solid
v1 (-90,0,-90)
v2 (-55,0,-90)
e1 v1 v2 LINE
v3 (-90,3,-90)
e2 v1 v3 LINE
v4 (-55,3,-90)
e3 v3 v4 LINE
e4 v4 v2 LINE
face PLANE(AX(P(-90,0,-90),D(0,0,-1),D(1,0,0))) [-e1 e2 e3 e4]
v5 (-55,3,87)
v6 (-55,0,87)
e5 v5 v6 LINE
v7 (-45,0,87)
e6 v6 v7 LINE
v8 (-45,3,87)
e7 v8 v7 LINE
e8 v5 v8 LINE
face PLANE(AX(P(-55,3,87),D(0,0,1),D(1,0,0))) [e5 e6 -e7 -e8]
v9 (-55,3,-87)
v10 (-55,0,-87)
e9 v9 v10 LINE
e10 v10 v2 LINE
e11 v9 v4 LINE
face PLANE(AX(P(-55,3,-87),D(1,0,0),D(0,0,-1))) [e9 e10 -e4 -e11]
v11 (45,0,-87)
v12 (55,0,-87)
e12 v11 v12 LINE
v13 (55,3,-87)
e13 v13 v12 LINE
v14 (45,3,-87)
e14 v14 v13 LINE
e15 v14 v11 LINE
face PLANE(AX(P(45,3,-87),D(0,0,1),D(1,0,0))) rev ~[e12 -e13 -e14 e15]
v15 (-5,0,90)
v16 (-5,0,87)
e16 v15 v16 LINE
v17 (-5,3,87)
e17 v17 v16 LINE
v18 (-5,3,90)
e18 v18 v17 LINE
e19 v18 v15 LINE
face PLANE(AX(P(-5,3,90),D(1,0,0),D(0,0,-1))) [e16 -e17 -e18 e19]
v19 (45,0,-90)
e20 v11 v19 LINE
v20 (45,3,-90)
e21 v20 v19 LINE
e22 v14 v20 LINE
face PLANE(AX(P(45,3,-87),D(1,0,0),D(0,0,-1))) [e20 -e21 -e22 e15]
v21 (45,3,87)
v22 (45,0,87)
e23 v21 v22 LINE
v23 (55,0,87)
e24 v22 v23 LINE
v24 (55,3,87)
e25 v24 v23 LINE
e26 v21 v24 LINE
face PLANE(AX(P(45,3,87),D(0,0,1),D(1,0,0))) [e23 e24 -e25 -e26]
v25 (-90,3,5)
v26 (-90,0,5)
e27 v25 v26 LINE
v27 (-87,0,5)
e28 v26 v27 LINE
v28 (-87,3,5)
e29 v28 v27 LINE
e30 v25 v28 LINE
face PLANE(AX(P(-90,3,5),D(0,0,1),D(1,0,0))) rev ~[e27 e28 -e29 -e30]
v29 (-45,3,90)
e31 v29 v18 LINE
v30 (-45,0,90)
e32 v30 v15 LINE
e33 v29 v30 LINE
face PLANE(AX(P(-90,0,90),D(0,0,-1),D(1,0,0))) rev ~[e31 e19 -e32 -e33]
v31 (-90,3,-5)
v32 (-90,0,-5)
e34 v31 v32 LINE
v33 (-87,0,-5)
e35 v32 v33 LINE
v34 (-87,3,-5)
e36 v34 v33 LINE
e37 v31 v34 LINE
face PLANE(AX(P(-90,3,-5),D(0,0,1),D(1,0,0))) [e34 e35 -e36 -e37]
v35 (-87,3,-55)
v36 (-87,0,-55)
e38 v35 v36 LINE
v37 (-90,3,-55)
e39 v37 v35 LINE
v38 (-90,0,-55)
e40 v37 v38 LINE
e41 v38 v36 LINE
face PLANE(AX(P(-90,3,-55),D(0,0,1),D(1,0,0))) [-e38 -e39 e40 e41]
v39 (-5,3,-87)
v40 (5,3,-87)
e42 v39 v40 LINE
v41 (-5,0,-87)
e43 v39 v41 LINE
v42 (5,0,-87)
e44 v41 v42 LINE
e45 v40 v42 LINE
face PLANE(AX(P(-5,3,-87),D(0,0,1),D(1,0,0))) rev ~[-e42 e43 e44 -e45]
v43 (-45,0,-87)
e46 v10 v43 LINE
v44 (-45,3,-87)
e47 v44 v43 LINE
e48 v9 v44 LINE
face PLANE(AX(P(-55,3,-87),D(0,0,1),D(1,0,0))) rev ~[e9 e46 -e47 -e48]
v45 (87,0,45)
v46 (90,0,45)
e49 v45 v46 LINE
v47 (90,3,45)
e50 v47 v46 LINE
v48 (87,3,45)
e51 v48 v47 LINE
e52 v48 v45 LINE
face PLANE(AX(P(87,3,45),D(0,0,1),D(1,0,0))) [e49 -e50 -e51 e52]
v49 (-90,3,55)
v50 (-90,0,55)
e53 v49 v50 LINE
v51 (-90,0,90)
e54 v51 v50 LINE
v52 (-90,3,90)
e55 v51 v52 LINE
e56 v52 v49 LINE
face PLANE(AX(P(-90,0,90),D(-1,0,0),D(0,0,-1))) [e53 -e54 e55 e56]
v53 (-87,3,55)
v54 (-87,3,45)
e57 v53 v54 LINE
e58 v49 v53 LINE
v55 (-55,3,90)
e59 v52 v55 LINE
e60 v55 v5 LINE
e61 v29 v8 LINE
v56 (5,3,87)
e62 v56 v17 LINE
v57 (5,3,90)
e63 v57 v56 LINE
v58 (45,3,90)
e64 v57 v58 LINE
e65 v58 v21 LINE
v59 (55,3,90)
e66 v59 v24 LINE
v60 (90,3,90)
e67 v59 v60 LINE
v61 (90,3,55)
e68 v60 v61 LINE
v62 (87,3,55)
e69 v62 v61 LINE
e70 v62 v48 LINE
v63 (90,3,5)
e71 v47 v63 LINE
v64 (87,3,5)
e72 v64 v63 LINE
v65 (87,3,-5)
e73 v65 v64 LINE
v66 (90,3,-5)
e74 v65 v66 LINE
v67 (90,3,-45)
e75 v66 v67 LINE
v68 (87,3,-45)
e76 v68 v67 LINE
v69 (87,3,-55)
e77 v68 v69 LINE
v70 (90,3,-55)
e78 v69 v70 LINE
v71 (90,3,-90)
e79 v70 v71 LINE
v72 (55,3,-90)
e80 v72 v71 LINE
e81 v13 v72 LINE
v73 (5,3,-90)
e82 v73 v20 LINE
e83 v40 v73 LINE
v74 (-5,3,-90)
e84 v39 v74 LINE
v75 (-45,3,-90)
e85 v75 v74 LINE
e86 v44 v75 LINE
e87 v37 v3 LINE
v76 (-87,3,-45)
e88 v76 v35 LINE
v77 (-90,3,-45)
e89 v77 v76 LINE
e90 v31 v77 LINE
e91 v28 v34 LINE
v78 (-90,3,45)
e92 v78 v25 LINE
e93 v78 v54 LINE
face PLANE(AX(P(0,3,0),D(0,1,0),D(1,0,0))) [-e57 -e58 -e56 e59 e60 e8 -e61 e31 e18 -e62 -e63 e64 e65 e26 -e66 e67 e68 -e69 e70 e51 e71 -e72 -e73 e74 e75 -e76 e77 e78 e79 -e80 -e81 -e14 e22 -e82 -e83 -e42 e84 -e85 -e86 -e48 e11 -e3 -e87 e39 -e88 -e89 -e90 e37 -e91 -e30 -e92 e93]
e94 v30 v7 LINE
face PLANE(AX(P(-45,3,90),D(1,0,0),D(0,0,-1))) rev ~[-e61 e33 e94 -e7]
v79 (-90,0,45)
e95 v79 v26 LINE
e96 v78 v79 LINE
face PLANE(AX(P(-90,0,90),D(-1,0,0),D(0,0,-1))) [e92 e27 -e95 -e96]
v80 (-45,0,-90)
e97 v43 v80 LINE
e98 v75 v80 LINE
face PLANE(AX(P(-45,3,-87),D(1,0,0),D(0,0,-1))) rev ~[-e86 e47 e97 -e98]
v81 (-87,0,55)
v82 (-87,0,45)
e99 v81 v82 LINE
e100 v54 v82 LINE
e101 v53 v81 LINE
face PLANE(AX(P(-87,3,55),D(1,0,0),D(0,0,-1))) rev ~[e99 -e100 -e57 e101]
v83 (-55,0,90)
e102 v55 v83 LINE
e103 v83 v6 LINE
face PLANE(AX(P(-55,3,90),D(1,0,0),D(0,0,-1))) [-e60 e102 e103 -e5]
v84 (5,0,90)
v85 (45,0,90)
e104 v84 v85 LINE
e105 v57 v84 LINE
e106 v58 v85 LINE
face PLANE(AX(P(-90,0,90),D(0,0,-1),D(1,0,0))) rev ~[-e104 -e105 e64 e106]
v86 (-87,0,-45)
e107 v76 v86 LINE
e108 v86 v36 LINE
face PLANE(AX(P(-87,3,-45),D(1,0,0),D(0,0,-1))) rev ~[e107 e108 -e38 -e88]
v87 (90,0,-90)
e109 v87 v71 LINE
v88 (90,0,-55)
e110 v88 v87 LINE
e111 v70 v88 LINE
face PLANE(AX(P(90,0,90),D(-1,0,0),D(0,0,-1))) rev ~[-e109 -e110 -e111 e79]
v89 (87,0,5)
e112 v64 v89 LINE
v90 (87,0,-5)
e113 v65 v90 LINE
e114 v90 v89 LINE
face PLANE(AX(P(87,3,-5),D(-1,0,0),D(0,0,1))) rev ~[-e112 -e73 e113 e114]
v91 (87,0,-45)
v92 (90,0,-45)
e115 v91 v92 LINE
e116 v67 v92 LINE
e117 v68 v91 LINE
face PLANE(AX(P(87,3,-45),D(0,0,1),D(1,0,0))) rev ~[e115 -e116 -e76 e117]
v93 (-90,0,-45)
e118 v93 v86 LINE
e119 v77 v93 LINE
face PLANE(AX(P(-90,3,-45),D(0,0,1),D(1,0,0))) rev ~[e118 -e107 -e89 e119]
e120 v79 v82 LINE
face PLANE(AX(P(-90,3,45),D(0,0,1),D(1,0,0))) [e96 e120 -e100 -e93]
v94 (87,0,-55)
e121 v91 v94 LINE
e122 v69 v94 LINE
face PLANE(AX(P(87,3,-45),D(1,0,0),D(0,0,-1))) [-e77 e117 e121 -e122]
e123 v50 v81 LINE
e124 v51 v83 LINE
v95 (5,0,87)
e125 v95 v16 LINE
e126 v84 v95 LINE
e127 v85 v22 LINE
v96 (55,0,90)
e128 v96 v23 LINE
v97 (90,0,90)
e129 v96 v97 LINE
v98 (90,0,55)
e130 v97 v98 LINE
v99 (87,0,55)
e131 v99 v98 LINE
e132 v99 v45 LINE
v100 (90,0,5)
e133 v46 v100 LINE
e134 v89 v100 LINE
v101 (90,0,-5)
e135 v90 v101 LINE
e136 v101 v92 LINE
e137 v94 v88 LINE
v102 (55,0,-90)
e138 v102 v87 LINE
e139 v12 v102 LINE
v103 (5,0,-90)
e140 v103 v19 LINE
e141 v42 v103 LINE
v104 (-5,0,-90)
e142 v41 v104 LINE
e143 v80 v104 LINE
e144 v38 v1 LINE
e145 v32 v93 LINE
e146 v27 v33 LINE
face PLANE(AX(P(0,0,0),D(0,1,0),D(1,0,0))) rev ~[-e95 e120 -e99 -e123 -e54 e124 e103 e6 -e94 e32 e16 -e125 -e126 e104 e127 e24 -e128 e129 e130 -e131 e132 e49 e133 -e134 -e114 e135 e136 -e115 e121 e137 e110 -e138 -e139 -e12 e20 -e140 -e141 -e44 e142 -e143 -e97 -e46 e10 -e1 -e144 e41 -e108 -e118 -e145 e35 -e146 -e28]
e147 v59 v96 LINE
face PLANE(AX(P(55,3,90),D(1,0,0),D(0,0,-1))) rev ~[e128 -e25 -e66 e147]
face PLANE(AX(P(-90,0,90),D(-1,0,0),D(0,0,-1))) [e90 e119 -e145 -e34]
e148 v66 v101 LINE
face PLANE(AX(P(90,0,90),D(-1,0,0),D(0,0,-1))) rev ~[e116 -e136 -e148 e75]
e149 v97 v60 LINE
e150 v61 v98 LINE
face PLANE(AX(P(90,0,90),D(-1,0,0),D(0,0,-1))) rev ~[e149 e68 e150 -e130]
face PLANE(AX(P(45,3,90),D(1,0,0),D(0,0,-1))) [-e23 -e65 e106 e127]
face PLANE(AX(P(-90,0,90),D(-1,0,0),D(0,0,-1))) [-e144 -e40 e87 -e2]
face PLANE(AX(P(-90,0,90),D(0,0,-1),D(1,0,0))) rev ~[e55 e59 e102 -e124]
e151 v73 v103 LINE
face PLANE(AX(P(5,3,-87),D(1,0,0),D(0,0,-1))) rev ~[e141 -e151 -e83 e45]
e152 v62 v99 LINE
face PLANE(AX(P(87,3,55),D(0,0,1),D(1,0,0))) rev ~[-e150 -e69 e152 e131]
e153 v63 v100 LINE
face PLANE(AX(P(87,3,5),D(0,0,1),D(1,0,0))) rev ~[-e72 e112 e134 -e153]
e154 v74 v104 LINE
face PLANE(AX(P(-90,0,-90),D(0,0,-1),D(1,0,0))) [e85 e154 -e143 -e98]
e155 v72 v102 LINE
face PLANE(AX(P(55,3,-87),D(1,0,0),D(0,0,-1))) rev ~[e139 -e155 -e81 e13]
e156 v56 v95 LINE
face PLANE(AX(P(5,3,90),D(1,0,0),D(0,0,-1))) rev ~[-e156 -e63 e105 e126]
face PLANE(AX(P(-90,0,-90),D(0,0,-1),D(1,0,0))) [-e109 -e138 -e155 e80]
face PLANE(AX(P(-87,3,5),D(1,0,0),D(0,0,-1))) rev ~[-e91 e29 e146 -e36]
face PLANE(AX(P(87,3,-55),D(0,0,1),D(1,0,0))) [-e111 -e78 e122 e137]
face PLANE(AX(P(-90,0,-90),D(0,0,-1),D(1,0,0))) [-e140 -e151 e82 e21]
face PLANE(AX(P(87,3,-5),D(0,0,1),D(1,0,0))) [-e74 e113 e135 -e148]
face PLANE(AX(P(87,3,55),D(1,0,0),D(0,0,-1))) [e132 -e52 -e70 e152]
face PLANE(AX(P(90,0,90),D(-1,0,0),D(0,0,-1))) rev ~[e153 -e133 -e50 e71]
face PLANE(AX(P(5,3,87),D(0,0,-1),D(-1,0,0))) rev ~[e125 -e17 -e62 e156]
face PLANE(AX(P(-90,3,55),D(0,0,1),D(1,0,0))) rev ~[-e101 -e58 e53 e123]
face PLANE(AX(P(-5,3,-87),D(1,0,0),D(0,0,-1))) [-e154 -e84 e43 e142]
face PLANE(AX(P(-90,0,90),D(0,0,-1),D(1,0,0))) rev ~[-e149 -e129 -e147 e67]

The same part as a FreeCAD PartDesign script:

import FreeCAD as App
import Part
import Sketcher

V = App.Vector
Q = App.Units.Quantity

doc = App.newDocument("Part")
body = doc.addObject("PartDesign::Body", "Body")

sketch1 = body.newObject("Sketcher::SketchObject", "Sketch")
sketch1.AttachmentSupport = (doc.getObject("XZ_Plane"), [""])
sketch1.MapMode = "FlatFace"
sketch1.addGeometry([
    Part.LineSegment(V(-90, -90, 0), V(-90, 90, 0)),
    Part.LineSegment(V(-90, 90, 0), V(90, 90, 0)),
    Part.LineSegment(V(90, 90, 0), V(90, -90, 0)),
    Part.LineSegment(V(90, -90, 0), V(-90, -90, 0)),
], False)
sketch1.addConstraint([
    Sketcher.Constraint("Coincident", 0, 2, 1, 1),
    Sketcher.Constraint("Coincident", 1, 2, 2, 1),
    Sketcher.Constraint("Coincident", 2, 2, 3, 1),
    Sketcher.Constraint("Coincident", 3, 2, 0, 1),
    Sketcher.Constraint("Vertical", 0),
    Sketcher.Constraint("Horizontal", 1),
    Sketcher.Constraint("Vertical", 2),
    Sketcher.Constraint("Horizontal", 3),
    Sketcher.Constraint("Symmetric", 0, 2, 2, 2, -1, 1),
    Sketcher.Constraint("Equal", 3, 0),
    Sketcher.Constraint("DistanceX", 1, 1, 1, 2, Q("180 mm")),
])
pad1 = body.newObject("PartDesign::Pad", "Pad")
pad1.Profile = sketch1
pad1.Length = 3
pad1.Reversed = True

sketch2 = body.newObject("Sketcher::SketchObject", "Sketch001")
sketch2.AttachmentSupport = (doc.getObject("XZ_Plane"), [""])
sketch2.MapMode = "FlatFace"
sketch2.AttachmentOffset = App.Placement(V(0, 0, -3), App.Rotation())
sketch2.addGeometry([
    Part.LineSegment(V(-5, -90, 0), V(-5, -87, 0)),
    Part.LineSegment(V(-5, -87, 0), V(5, -87, 0)),
    Part.LineSegment(V(5, -87, 0), V(5, -90, 0)),
    Part.LineSegment(V(5, -90, 0), V(-5, -90, 0)),
], False)
sketch2.addConstraint([
    Sketcher.Constraint("Coincident", 0, 2, 1, 1),
    Sketcher.Constraint("Coincident", 1, 2, 2, 1),
    Sketcher.Constraint("Coincident", 2, 2, 3, 1),
    Sketcher.Constraint("Coincident", 3, 2, 0, 1),
    Sketcher.Constraint("Vertical", 0),
    Sketcher.Constraint("Horizontal", 1),
    Sketcher.Constraint("Vertical", 2),
    Sketcher.Constraint("Horizontal", 3),
    Sketcher.Constraint("DistanceX", 1, 1, 1, 2, Q("10 mm")),
    Sketcher.Constraint("DistanceY", 0, 1, 0, 2, Q("3 mm")),
    Sketcher.Constraint("DistanceX", 0, 2, -1, 1, Q("5 mm")),
    Sketcher.Constraint("DistanceY", 0, 2, -1, 1, Q("87 mm")),
])
pocket1 = body.newObject("PartDesign::Pocket", "Pocket")
pocket1.Profile = sketch2
pocket1.Length = 3
pocket1.Reversed = True

sketch3 = body.newObject("Sketcher::SketchObject", "Sketch002")
sketch3.AttachmentSupport = (doc.getObject("XZ_Plane"), [""])
sketch3.MapMode = "FlatFace"
sketch3.AttachmentOffset = App.Placement(V(0, 0, -3), App.Rotation())
sketch3.addGeometry([
    Part.LineSegment(V(-5, 87, 0), V(-5, 90, 0)),
    Part.LineSegment(V(-5, 90, 0), V(5, 90, 0)),
    Part.LineSegment(V(5, 90, 0), V(5, 87, 0)),
    Part.LineSegment(V(5, 87, 0), V(-5, 87, 0)),
], False)
sketch3.addConstraint([
    Sketcher.Constraint("Coincident", 0, 2, 1, 1),
    Sketcher.Constraint("Coincident", 1, 2, 2, 1),
    Sketcher.Constraint("Coincident", 2, 2, 3, 1),
    Sketcher.Constraint("Coincident", 3, 2, 0, 1),
    Sketcher.Constraint("Vertical", 0),
    Sketcher.Constraint("Horizontal", 1),
    Sketcher.Constraint("Vertical", 2),
    Sketcher.Constraint("Horizontal", 3),
    Sketcher.Constraint("DistanceX", 1, 1, 1, 2, Q("10 mm")),
    Sketcher.Constraint("DistanceY", 0, 1, 0, 2, Q("3 mm")),
    Sketcher.Constraint("DistanceX", 0, 2, -1, 1, Q("5 mm")),
    Sketcher.Constraint("DistanceY", -1, 1, 0, 2, Q("90 mm")),
])
pocket2 = body.newObject("PartDesign::Pocket", "Pocket001")
pocket2.Profile = sketch3
pocket2.Length = 3
pocket2.Reversed = True

sketch4 = body.newObject("Sketcher::SketchObject", "Sketch003")
sketch4.AttachmentSupport = (doc.getObject("XZ_Plane"), [""])
sketch4.MapMode = "FlatFace"
sketch4.AttachmentOffset = App.Placement(V(0, 0, -3), App.Rotation())
sketch4.addGeometry([
    Part.LineSegment(V(-90, -5, 0), V(-90, 5, 0)),
    Part.LineSegment(V(-90, 5, 0), V(-87, 5, 0)),
    Part.LineSegment(V(-87, 5, 0), V(-87, -5, 0)),
    Part.LineSegment(V(-87, -5, 0), V(-90, -5, 0)),
], False)
sketch4.addConstraint([
    Sketcher.Constraint("Coincident", 0, 2, 1, 1),
    Sketcher.Constraint("Coincident", 1, 2, 2, 1),
    Sketcher.Constraint("Coincident", 2, 2, 3, 1),
    Sketcher.Constraint("Coincident", 3, 2, 0, 1),
    Sketcher.Constraint("Vertical", 0),
    Sketcher.Constraint("Horizontal", 1),
    Sketcher.Constraint("Vertical", 2),
    Sketcher.Constraint("Horizontal", 3),
    Sketcher.Constraint("DistanceX", 1, 1, 1, 2, Q("3 mm")),
    Sketcher.Constraint("DistanceY", 0, 1, 0, 2, Q("10 mm")),
    Sketcher.Constraint("DistanceX", 0, 2, -1, 1, Q("90 mm")),
    Sketcher.Constraint("DistanceY", -1, 1, 0, 2, Q("5 mm")),
])
pocket3 = body.newObject("PartDesign::Pocket", "Pocket002")
pocket3.Profile = sketch4
pocket3.Length = 3
pocket3.Reversed = True

sketch5 = body.newObject("Sketcher::SketchObject", "Sketch004")
sketch5.AttachmentSupport = (doc.getObject("XZ_Plane"), [""])
sketch5.MapMode = "FlatFace"
sketch5.AttachmentOffset = App.Placement(V(0, 0, -3), App.Rotation())
sketch5.addGeometry([
    Part.LineSegment(V(87, -5, 0), V(87, 5, 0)),
    Part.LineSegment(V(87, 5, 0), V(90, 5, 0)),
    Part.LineSegment(V(90, 5, 0), V(90, -5, 0)),
    Part.LineSegment(V(90, -5, 0), V(87, -5, 0)),
], False)
sketch5.addConstraint([
    Sketcher.Constraint("Coincident", 0, 2, 1, 1),
    Sketcher.Constraint("Coincident", 1, 2, 2, 1),
    Sketcher.Constraint("Coincident", 2, 2, 3, 1),
    Sketcher.Constraint("Coincident", 3, 2, 0, 1),
    Sketcher.Constraint("Vertical", 0),
    Sketcher.Constraint("Horizontal", 1),
    Sketcher.Constraint("Vertical", 2),
    Sketcher.Constraint("Horizontal", 3),
    Sketcher.Constraint("DistanceX", 1, 1, 1, 2, Q("3 mm")),
    Sketcher.Constraint("DistanceY", 0, 1, 0, 2, Q("10 mm")),
    Sketcher.Constraint("DistanceX", -1, 1, 0, 2, Q("87 mm")),
    Sketcher.Constraint("DistanceY", -1, 1, 0, 2, Q("5 mm")),
])
pocket4 = body.newObject("PartDesign::Pocket", "Pocket003")
pocket4.Profile = sketch5
pocket4.Length = 3
pocket4.Reversed = True

sketch6 = body.newObject("Sketcher::SketchObject", "Sketch005")
sketch6.AttachmentSupport = (doc.getObject("XZ_Plane"), [""])
sketch6.MapMode = "FlatFace"
sketch6.AttachmentOffset = App.Placement(V(0, 0, -3), App.Rotation())
sketch6.addGeometry([
    Part.LineSegment(V(-55, 87, 0), V(-55, 90, 0)),
    Part.LineSegment(V(-55, 90, 0), V(-45, 90, 0)),
    Part.LineSegment(V(-45, 90, 0), V(-45, 87, 0)),
    Part.LineSegment(V(-45, 87, 0), V(-55, 87, 0)),
    Part.LineSegment(V(45, 87, 0), V(45, 90, 0)),
    Part.LineSegment(V(45, 90, 0), V(55, 90, 0)),
    Part.LineSegment(V(55, 90, 0), V(55, 87, 0)),
    Part.LineSegment(V(55, 87, 0), V(45, 87, 0)),
    Part.LineSegment(V(87, 45, 0), V(87, 55, 0)),
    Part.LineSegment(V(87, 55, 0), V(90, 55, 0)),
    Part.LineSegment(V(90, 55, 0), V(90, 45, 0)),
    Part.LineSegment(V(90, 45, 0), V(87, 45, 0)),
    Part.LineSegment(V(45, -90, 0), V(45, -87, 0)),
    Part.LineSegment(V(45, -87, 0), V(55, -87, 0)),
    Part.LineSegment(V(55, -87, 0), V(55, -90, 0)),
    Part.LineSegment(V(55, -90, 0), V(45, -90, 0)),
    Part.LineSegment(V(-90, 45, 0), V(-90, 55, 0)),
    Part.LineSegment(V(-90, 55, 0), V(-87, 55, 0)),
    Part.LineSegment(V(-87, 55, 0), V(-87, 45, 0)),
    Part.LineSegment(V(-87, 45, 0), V(-90, 45, 0)),
    Part.LineSegment(V(87, -55, 0), V(87, -45, 0)),
    Part.LineSegment(V(87, -45, 0), V(90, -45, 0)),
    Part.LineSegment(V(90, -45, 0), V(90, -55, 0)),
    Part.LineSegment(V(90, -55, 0), V(87, -55, 0)),
    Part.LineSegment(V(-90, -55, 0), V(-90, -45, 0)),
    Part.LineSegment(V(-90, -45, 0), V(-87, -45, 0)),
    Part.LineSegment(V(-87, -45, 0), V(-87, -55, 0)),
    Part.LineSegment(V(-87, -55, 0), V(-90, -55, 0)),
    Part.LineSegment(V(-55, -90, 0), V(-55, -87, 0)),
    Part.LineSegment(V(-55, -87, 0), V(-45, -87, 0)),
    Part.LineSegment(V(-45, -87, 0), V(-45, -90, 0)),
    Part.LineSegment(V(-45, -90, 0), V(-55, -90, 0)),
], False)
sketch6.addConstraint([
    Sketcher.Constraint("Coincident", 0, 2, 1, 1),
    Sketcher.Constraint("Coincident", 1, 2, 2, 1),
    Sketcher.Constraint("Coincident", 2, 2, 3, 1),
    Sketcher.Constraint("Coincident", 3, 2, 0, 1),
    Sketcher.Constraint("Coincident", 4, 2, 5, 1),
    Sketcher.Constraint("Coincident", 5, 2, 6, 1),
    Sketcher.Constraint("Coincident", 6, 2, 7, 1),
    Sketcher.Constraint("Coincident", 7, 2, 4, 1),
    Sketcher.Constraint("Coincident", 8, 2, 9, 1),
    Sketcher.Constraint("Coincident", 9, 2, 10, 1),
    Sketcher.Constraint("Coincident", 10, 2, 11, 1),
    Sketcher.Constraint("Coincident", 11, 2, 8, 1),
    Sketcher.Constraint("Coincident", 12, 2, 13, 1),
    Sketcher.Constraint("Coincident", 13, 2, 14, 1),
    Sketcher.Constraint("Coincident", 14, 2, 15, 1),
    Sketcher.Constraint("Coincident", 15, 2, 12, 1),
    Sketcher.Constraint("Coincident", 16, 2, 17, 1),
    Sketcher.Constraint("Coincident", 17, 2, 18, 1),
    Sketcher.Constraint("Coincident", 18, 2, 19, 1),
    Sketcher.Constraint("Coincident", 19, 2, 16, 1),
    Sketcher.Constraint("Coincident", 20, 2, 21, 1),
    Sketcher.Constraint("Coincident", 21, 2, 22, 1),
    Sketcher.Constraint("Coincident", 22, 2, 23, 1),
    Sketcher.Constraint("Coincident", 23, 2, 20, 1),
    Sketcher.Constraint("Coincident", 24, 2, 25, 1),
    Sketcher.Constraint("Coincident", 25, 2, 26, 1),
    Sketcher.Constraint("Coincident", 26, 2, 27, 1),
    Sketcher.Constraint("Coincident", 27, 2, 24, 1),
    Sketcher.Constraint("Coincident", 28, 2, 29, 1),
    Sketcher.Constraint("Coincident", 29, 2, 30, 1),
    Sketcher.Constraint("Coincident", 30, 2, 31, 1),
    Sketcher.Constraint("Coincident", 31, 2, 28, 1),
    Sketcher.Constraint("Vertical", 0),
    Sketcher.Constraint("Horizontal", 1),
    Sketcher.Constraint("Vertical", 2),
    Sketcher.Constraint("Horizontal", 3),
    Sketcher.Constraint("Vertical", 4),
    Sketcher.Constraint("Horizontal", 5),
    Sketcher.Constraint("Vertical", 6),
    Sketcher.Constraint("Horizontal", 7),
    Sketcher.Constraint("Vertical", 8),
    Sketcher.Constraint("Horizontal", 9),
    Sketcher.Constraint("Vertical", 10),
    Sketcher.Constraint("Horizontal", 11),
    Sketcher.Constraint("Vertical", 12),
    Sketcher.Constraint("Horizontal", 13),
    Sketcher.Constraint("Vertical", 14),
    Sketcher.Constraint("Horizontal", 15),
    Sketcher.Constraint("Vertical", 16),
    Sketcher.Constraint("Horizontal", 17),
    Sketcher.Constraint("Vertical", 18),
    Sketcher.Constraint("Horizontal", 19),
    Sketcher.Constraint("Vertical", 20),
    Sketcher.Constraint("Horizontal", 21),
    Sketcher.Constraint("Vertical", 22),
    Sketcher.Constraint("Horizontal", 23),
    Sketcher.Constraint("Vertical", 24),
    Sketcher.Constraint("Horizontal", 25),
    Sketcher.Constraint("Vertical", 26),
    Sketcher.Constraint("Horizontal", 27),
    Sketcher.Constraint("Vertical", 28),
    Sketcher.Constraint("Horizontal", 29),
    Sketcher.Constraint("Vertical", 30),
    Sketcher.Constraint("Horizontal", 31),
    Sketcher.Constraint("Symmetric", 2, 2, 12, 2, -1, 1),
    Sketcher.Constraint("Symmetric", 0, 2, 14, 2, -1, 1),
    Sketcher.Constraint("Symmetric", 18, 2, 20, 2, -1, 1),
    Sketcher.Constraint("Symmetric", 16, 2, 22, 2, -1, 1),
    Sketcher.Constraint("Symmetric", 10, 2, 24, 2, -1, 1),
    Sketcher.Constraint("Symmetric", 8, 2, 26, 2, -1, 1),
    Sketcher.Constraint("Symmetric", 6, 2, 28, 2, -1, 1),
    Sketcher.Constraint("Symmetric", 4, 2, 30, 2, -1, 1),
    Sketcher.Constraint("Symmetric", 1, 2, 4, 2, -2),
    Sketcher.Constraint("Symmetric", 3, 2, 6, 2, -2),
    Sketcher.Constraint("Symmetric", 9, 2, 16, 2, -2),
    Sketcher.Constraint("Symmetric", 11, 2, 18, 2, -2),
    Sketcher.Constraint("Equal", 27, 0),
    Sketcher.Constraint("Equal", 31, 8),
    Sketcher.Constraint("DistanceX", 1, 1, 1, 2, Q("10 mm")),
    Sketcher.Constraint("DistanceX", 9, 1, 9, 2, Q("3 mm")),
    Sketcher.Constraint("DistanceX", 0, 2, -1, 1, Q("55 mm")),
    Sketcher.Constraint("DistanceY", -1, 1, 0, 2, Q("90 mm")),
    Sketcher.Constraint("DistanceX", -1, 1, 8, 2, Q("87 mm")),
    Sketcher.Constraint("DistanceY", -1, 1, 8, 2, Q("55 mm")),
])
pocket5 = body.newObject("PartDesign::Pocket", "Pocket004")
pocket5.Profile = sketch6
pocket5.Length = 10
pocket5.Reversed = True

doc.recompute()
